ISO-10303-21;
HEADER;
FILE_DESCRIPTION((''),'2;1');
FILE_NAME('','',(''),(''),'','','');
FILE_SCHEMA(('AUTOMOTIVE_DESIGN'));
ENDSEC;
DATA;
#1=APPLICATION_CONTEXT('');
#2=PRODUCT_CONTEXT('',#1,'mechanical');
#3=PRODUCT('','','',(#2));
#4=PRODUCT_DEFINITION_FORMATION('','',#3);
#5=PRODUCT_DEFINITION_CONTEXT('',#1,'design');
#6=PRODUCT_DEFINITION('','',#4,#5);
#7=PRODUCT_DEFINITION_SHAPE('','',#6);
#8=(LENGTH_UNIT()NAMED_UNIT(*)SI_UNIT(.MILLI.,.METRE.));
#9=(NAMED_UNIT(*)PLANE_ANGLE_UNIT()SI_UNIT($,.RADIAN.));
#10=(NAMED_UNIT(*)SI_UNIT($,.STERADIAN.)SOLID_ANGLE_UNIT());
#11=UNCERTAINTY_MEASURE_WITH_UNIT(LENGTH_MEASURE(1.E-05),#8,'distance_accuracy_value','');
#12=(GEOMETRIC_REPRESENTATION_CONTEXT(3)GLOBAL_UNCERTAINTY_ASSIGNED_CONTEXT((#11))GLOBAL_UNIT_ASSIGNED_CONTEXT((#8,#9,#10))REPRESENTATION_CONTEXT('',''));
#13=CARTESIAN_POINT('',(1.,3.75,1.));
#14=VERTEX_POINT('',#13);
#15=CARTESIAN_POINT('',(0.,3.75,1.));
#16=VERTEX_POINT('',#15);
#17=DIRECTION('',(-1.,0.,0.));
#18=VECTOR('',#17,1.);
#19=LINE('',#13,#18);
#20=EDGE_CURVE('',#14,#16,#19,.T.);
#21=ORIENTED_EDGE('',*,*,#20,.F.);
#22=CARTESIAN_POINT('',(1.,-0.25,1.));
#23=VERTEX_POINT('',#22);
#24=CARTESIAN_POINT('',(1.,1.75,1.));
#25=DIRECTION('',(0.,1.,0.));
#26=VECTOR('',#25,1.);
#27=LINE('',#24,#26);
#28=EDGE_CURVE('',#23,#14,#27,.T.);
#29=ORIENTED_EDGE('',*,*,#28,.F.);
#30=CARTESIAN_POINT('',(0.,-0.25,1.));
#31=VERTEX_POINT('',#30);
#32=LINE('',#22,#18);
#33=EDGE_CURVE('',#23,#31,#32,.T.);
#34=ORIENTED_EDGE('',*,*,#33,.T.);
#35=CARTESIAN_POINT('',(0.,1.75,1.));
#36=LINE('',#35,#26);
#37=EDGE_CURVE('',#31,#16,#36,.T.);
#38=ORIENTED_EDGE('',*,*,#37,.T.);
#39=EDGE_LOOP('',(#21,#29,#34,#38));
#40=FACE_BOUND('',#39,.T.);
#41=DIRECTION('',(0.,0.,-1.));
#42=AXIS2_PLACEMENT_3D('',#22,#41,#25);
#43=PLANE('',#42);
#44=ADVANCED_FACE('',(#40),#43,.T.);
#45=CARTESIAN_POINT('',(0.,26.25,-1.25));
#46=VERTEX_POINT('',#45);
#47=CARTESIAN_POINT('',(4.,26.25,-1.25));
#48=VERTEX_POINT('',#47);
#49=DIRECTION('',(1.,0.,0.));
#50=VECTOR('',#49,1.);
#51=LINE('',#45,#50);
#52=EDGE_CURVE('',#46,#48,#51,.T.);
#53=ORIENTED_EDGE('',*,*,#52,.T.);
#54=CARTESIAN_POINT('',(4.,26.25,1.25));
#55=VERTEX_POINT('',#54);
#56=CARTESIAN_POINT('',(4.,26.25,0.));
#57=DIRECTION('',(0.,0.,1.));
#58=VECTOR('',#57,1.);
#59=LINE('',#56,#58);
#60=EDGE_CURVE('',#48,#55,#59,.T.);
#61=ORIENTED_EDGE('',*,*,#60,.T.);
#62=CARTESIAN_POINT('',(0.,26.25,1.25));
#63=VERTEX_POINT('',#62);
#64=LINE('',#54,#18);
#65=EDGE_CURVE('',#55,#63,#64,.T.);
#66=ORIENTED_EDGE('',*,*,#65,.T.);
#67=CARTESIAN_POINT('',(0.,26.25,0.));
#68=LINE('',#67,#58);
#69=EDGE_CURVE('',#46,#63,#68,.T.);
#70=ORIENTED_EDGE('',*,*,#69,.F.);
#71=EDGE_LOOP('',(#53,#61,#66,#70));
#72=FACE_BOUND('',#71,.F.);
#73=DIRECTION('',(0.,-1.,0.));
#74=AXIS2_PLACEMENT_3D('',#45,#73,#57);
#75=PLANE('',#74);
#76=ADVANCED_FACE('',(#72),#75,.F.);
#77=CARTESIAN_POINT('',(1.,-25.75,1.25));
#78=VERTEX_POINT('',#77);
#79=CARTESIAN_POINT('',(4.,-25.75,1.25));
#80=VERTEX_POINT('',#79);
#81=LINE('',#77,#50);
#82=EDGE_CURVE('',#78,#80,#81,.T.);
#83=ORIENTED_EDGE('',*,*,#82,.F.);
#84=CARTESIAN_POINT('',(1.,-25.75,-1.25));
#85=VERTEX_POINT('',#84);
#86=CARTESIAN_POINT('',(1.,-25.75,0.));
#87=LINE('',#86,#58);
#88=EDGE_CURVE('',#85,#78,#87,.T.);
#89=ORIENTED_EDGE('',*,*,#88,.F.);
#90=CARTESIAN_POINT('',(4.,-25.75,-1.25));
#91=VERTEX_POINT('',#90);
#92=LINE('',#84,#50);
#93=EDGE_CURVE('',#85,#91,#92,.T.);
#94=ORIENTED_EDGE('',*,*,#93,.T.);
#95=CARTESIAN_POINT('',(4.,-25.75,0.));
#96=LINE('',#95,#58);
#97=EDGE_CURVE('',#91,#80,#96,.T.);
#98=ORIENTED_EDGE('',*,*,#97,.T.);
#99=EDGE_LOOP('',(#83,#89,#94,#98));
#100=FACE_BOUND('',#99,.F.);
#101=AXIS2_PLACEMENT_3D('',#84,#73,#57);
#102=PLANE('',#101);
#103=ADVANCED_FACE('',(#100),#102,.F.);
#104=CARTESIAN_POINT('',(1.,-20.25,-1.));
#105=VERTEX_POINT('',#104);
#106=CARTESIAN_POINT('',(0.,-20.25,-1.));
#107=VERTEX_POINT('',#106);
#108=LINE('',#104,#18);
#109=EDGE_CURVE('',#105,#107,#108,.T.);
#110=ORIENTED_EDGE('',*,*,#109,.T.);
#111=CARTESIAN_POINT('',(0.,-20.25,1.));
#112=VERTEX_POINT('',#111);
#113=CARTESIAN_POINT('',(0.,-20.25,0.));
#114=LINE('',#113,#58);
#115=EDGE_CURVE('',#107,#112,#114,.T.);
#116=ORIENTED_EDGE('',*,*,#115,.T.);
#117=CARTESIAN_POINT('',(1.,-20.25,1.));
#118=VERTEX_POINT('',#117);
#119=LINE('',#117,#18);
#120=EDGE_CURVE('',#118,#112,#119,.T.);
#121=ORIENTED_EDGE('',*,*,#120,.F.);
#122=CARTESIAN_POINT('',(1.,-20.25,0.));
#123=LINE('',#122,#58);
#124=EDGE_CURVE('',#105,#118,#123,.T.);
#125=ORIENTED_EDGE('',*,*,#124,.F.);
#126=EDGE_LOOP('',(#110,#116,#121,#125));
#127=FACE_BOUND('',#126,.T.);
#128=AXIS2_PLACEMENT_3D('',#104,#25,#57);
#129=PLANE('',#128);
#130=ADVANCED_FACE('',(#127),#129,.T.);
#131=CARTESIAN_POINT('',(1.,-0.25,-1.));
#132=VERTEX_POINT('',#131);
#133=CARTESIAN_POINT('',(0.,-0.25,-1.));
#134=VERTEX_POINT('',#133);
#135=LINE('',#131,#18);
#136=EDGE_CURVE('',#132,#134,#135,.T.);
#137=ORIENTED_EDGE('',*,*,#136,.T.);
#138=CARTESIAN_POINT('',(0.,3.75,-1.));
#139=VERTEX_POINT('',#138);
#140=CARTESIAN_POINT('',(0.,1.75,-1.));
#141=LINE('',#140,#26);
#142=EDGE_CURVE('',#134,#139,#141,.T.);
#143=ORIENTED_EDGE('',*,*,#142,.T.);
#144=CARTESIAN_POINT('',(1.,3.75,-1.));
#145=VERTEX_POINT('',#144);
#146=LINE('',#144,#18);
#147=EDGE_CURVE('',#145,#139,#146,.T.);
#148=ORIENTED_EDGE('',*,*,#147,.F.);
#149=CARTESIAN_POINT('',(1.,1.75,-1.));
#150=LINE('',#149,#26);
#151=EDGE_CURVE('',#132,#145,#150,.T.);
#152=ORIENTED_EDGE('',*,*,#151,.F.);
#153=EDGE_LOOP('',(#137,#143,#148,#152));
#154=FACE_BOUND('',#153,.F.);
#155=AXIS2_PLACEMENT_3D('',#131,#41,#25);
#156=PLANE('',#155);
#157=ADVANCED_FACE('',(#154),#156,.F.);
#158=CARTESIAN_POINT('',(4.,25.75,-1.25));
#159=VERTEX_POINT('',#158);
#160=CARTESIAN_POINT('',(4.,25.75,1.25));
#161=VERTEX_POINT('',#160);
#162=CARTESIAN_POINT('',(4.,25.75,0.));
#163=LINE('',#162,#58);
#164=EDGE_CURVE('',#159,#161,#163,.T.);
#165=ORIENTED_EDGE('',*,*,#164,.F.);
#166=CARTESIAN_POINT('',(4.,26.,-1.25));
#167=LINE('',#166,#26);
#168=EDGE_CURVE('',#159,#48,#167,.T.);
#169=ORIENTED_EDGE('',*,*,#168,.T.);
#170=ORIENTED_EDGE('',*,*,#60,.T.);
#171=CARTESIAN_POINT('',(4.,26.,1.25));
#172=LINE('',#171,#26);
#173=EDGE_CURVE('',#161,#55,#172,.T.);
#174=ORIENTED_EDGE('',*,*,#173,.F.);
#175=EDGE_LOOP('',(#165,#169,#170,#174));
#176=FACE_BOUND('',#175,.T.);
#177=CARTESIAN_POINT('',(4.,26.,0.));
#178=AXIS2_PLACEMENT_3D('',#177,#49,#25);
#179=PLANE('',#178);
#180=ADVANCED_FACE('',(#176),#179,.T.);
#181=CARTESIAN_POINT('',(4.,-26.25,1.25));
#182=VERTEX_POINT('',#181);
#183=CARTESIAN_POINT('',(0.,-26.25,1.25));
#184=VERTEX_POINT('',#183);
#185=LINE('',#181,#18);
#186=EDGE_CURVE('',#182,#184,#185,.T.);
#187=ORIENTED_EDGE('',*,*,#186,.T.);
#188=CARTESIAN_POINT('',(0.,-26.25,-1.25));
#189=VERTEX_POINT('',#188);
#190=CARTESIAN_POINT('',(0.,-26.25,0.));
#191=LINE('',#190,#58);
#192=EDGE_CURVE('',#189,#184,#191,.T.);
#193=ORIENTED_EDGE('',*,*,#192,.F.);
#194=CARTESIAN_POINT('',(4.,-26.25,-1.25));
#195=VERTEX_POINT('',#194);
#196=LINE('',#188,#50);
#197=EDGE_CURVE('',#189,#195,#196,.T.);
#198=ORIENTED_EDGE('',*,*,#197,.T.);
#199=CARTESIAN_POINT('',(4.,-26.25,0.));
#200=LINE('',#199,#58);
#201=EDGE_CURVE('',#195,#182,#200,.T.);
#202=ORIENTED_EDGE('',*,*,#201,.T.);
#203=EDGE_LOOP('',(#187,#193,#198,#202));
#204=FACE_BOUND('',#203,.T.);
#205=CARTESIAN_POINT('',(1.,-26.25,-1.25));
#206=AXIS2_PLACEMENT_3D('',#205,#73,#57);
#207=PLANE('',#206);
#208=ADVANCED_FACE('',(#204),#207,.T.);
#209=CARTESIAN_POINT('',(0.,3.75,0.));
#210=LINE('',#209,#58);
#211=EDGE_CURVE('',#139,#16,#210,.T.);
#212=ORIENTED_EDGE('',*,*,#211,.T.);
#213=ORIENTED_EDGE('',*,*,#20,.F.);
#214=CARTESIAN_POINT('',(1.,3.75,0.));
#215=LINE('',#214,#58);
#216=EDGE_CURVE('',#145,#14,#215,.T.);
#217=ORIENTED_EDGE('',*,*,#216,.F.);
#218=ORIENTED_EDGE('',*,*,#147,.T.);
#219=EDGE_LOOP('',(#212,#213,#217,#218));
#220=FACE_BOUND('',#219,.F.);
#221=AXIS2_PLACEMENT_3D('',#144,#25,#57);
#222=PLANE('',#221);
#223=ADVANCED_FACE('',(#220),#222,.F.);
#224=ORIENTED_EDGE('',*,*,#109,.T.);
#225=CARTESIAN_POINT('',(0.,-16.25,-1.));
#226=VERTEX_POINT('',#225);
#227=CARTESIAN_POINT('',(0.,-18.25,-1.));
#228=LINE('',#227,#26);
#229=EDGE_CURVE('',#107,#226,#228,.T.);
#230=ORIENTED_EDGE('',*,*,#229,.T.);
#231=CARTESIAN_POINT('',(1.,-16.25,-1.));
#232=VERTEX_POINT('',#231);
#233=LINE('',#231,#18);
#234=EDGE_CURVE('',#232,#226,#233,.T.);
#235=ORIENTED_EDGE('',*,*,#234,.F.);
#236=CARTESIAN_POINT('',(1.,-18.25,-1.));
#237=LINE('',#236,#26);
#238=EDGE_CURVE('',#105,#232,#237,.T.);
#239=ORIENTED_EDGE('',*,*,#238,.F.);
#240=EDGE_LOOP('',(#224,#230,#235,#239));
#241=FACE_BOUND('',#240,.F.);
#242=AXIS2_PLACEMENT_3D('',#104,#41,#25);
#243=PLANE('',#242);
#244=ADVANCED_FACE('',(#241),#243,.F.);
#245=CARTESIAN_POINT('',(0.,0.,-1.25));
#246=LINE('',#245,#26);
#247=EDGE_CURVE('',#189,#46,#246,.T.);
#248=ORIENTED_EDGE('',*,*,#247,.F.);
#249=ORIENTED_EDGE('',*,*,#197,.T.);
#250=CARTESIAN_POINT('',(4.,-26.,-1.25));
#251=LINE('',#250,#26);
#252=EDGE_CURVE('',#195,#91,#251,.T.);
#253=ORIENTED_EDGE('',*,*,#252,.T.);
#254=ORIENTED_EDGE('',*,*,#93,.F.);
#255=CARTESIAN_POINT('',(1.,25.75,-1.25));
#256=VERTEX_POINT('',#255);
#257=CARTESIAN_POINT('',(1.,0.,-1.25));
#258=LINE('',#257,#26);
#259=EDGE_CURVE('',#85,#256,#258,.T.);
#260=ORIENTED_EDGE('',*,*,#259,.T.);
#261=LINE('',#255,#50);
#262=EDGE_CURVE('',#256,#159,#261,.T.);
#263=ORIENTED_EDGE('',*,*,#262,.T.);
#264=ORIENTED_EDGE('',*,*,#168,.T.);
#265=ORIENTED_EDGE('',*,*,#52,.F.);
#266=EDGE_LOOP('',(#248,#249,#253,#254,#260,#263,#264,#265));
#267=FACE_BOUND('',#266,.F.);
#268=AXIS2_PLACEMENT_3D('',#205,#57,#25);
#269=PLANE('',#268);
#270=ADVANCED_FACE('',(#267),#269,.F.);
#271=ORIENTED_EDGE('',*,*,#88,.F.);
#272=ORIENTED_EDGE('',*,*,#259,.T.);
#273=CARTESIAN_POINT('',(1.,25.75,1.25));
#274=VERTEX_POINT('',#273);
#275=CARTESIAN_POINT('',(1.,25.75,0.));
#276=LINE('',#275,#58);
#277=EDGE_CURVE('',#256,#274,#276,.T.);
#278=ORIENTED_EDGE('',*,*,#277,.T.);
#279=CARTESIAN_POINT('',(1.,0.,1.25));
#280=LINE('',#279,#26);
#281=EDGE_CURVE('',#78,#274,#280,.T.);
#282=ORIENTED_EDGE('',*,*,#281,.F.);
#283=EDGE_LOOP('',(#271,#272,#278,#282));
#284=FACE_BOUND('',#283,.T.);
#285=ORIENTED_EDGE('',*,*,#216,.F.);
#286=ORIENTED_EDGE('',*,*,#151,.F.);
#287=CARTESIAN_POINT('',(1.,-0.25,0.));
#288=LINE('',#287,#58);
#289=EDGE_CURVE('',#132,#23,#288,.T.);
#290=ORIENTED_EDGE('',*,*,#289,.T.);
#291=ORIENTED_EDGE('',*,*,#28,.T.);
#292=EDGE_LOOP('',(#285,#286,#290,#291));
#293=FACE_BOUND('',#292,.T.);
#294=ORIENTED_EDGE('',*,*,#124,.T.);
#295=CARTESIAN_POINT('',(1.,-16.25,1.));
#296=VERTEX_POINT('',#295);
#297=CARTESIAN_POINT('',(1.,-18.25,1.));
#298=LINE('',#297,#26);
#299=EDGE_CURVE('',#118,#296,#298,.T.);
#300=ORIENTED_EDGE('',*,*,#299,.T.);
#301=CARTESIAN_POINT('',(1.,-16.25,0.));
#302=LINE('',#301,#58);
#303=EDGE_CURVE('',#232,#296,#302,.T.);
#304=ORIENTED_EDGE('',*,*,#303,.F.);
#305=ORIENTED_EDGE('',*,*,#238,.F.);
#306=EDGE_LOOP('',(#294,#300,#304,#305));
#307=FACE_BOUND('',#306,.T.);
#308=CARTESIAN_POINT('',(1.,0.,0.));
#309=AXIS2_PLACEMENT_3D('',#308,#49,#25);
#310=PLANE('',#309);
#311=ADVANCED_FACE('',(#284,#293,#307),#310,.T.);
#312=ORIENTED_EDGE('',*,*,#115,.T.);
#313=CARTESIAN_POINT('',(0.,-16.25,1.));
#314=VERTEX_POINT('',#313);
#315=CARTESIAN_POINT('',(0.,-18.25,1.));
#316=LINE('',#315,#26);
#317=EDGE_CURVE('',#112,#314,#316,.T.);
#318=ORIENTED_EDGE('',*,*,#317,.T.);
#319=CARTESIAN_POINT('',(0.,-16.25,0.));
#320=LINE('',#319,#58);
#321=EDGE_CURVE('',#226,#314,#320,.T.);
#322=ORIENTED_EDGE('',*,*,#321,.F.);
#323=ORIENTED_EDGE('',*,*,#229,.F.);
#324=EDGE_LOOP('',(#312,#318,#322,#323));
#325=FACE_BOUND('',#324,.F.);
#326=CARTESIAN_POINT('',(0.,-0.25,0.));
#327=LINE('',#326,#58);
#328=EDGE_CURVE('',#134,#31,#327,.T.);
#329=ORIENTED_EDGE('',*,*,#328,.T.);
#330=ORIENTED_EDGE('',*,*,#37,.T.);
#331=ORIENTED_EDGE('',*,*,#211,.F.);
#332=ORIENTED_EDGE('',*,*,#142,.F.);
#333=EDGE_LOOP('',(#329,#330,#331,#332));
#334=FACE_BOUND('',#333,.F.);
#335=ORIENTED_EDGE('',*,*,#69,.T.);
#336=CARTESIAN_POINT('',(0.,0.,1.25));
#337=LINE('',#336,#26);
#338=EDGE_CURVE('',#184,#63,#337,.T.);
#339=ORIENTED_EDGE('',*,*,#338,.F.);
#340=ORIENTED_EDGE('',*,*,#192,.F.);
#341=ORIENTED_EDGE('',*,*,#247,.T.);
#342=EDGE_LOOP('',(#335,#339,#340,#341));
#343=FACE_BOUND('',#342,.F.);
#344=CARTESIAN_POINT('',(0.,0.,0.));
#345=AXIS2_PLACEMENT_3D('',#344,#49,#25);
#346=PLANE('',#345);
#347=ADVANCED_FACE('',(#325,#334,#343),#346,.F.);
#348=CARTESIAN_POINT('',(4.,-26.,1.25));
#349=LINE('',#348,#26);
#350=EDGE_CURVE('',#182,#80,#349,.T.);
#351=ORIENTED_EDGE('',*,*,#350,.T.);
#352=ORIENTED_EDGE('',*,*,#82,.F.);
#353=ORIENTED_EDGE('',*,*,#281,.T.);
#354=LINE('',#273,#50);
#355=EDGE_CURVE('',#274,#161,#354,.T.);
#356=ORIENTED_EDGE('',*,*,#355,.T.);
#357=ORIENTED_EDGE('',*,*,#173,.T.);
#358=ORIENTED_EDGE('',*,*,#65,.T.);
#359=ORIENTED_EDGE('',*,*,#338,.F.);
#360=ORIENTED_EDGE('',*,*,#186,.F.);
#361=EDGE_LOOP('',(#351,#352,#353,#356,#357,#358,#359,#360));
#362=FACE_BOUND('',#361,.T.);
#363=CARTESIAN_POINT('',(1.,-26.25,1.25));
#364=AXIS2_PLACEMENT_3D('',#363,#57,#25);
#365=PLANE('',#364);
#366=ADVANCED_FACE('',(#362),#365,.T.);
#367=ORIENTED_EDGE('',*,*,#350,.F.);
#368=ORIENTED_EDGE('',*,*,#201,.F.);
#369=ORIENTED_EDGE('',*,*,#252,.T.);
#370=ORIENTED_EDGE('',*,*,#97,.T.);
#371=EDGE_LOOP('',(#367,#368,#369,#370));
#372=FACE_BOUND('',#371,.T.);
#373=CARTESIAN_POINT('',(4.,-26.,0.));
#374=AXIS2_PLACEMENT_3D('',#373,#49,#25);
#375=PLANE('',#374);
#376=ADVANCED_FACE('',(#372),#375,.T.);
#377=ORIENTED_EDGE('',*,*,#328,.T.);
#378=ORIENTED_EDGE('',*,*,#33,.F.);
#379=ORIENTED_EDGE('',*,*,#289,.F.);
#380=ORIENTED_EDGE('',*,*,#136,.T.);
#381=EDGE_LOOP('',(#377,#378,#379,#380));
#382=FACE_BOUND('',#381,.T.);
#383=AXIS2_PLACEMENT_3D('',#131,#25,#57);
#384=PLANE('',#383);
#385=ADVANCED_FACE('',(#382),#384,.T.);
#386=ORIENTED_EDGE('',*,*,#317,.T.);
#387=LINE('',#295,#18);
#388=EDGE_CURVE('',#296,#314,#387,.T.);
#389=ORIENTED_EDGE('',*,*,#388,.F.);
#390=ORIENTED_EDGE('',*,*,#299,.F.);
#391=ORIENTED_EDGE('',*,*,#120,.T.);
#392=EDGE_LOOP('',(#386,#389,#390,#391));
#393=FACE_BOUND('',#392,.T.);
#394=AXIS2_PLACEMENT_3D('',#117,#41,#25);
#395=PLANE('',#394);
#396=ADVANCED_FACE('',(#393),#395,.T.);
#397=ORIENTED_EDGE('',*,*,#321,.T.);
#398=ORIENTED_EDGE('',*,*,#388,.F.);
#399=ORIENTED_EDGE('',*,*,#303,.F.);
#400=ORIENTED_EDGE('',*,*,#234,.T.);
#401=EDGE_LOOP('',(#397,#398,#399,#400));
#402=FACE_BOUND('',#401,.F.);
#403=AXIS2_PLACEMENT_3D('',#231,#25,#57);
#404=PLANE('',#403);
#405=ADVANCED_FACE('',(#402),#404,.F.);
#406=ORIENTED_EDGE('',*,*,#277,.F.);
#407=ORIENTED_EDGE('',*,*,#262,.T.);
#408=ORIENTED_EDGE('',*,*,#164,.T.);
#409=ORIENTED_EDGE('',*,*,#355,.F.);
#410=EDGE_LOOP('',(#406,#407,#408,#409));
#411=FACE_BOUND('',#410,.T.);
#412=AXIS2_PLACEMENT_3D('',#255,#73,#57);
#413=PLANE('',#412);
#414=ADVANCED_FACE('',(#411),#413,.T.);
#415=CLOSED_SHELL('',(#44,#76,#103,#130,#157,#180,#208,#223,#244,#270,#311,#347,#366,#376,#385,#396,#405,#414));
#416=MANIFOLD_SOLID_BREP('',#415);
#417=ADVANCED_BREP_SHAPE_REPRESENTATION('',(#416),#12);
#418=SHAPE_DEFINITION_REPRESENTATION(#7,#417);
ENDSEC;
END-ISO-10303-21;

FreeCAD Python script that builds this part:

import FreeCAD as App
import Part
import Sketcher

doc = App.newDocument("Part")
body = doc.addObject("PartDesign::Body", "Body")

# Sketch on YZ plane
sketch1 = body.newObject("Sketcher::SketchObject", "Sketch")
sketch1.AttachmentSupport = (doc.getObject("YZ_Plane"), [""])
sketch1.MapMode = "FlatFace"
sketch1.addGeometry(Part.LineSegment(App.Vector(-26.25, 1.25, 0), App.Vector(-26.25, -1.25, 0)), False)
sketch1.addGeometry(Part.LineSegment(App.Vector(-26.25, -1.25, 0), App.Vector(26.25, -1.25, 0)), False)
sketch1.addGeometry(Part.LineSegment(App.Vector(26.25, -1.25, 0), App.Vector(26.25, 1.25, 0)), False)
sketch1.addGeometry(Part.LineSegment(App.Vector(26.25, 1.25, 0), App.Vector(-26.25, 1.25, 0)), False)
sketch1.addConstraint(Sketcher.Constraint("Coincident", 0, 2, 1, 1))
sketch1.addConstraint(Sketcher.Constraint("Coincident", 1, 2, 2, 1))
sketch1.addConstraint(Sketcher.Constraint("Coincident", 2, 2, 3, 1))
sketch1.addConstraint(Sketcher.Constraint("Coincident", 3, 2, 0, 1))
sketch1.addConstraint(Sketcher.Constraint("Vertical", 0))
sketch1.addConstraint(Sketcher.Constraint("Horizontal", 1))
sketch1.addConstraint(Sketcher.Constraint("Vertical", 2))
sketch1.addConstraint(Sketcher.Constraint("Horizontal", 3))
sketch1.addConstraint(Sketcher.Constraint("Symmetric", 0, 2, 2, 2, -1, 1))
sketch1.addConstraint(Sketcher.Constraint("DistanceX", 1, 1, 1, 2, 52.5))
sketch1.addConstraint(Sketcher.Constraint("DistanceY", 0, 2, 0, 1, 2.5))
pad1 = body.newObject("PartDesign::Pad", "Pad")
pad1.Profile = sketch1
pad1.Length = 1

# Sketch on YZ plane
sketch2 = body.newObject("Sketcher::SketchObject", "Sketch001")
sketch2.AttachmentSupport = (doc.getObject("YZ_Plane"), [""])
sketch2.MapMode = "FlatFace"
sketch2.AttachmentOffset = App.Placement(App.Vector(0, 0, 1), App.Rotation())
sketch2.addGeometry(Part.LineSegment(App.Vector(-26.25, 1.25, 0), App.Vector(-26.25, -1.25, 0)), False)
sketch2.addGeometry(Part.LineSegment(App.Vector(-26.25, -1.25, 0), App.Vector(-25.75, -1.25, 0)), False)
sketch2.addGeometry(Part.LineSegment(App.Vector(-25.75, -1.25, 0), App.Vector(-25.75, 1.25, 0)), False)
sketch2.addGeometry(Part.LineSegment(App.Vector(-25.75, 1.25, 0), App.Vector(-26.25, 1.25, 0)), False)
sketch2.addGeometry(Part.LineSegment(App.Vector(25.75, 1.25, 0), App.Vector(25.75, -1.25, 0)), False)
sketch2.addGeometry(Part.LineSegment(App.Vector(25.75, -1.25, 0), App.Vector(26.25, -1.25, 0)), False)
sketch2.addGeometry(Part.LineSegment(App.Vector(26.25, -1.25, 0), App.Vector(26.25, 1.25, 0)), False)
sketch2.addGeometry(Part.LineSegment(App.Vector(26.25, 1.25, 0), App.Vector(25.75, 1.25, 0)), False)
sketch2.addConstraint(Sketcher.Constraint("Coincident", 0, 2, 1, 1))
sketch2.addConstraint(Sketcher.Constraint("Coincident", 1, 2, 2, 1))
sketch2.addConstraint(Sketcher.Constraint("Coincident", 2, 2, 3, 1))
sketch2.addConstraint(Sketcher.Constraint("Coincident", 3, 2, 0, 1))
sketch2.addConstraint(Sketcher.Constraint("Coincident", 4, 2, 5, 1))
sketch2.addConstraint(Sketcher.Constraint("Coincident", 5, 2, 6, 1))
sketch2.addConstraint(Sketcher.Constraint("Coincident", 6, 2, 7, 1))
sketch2.addConstraint(Sketcher.Constraint("Coincident", 7, 2, 4, 1))
sketch2.addConstraint(Sketcher.Constraint("Vertical", 0))
sketch2.addConstraint(Sketcher.Constraint("Horizontal", 1))
sketch2.addConstraint(Sketcher.Constraint("Vertical", 2))
sketch2.addConstraint(Sketcher.Constraint("Horizontal", 3))
sketch2.addConstraint(Sketcher.Constraint("Vertical", 4))
sketch2.addConstraint(Sketcher.Constraint("Horizontal", 5))
sketch2.addConstraint(Sketcher.Constraint("Vertical", 6))
sketch2.addConstraint(Sketcher.Constraint("Horizontal", 7))
sketch2.addConstraint(Sketcher.Constraint("Symmetric", 2, 2, 4, 2, -1, 1))
sketch2.addConstraint(Sketcher.Constraint("Symmetric", 0, 2, 6, 2, -1, 1))
sketch2.addConstraint(Sketcher.Constraint("Horizontal", 1, 2, 4, 2))
sketch2.addConstraint(Sketcher.Constraint("DistanceX", 1, 1, 1, 2, 0.5))
sketch2.addConstraint(Sketcher.Constraint("DistanceY", 0, 2, 0, 1, 2.5))
sketch2.addConstraint(Sketcher.Constraint("DistanceX", 0, 2, 4, 2, 52.0))
pad2 = body.newObject("PartDesign::Pad", "Pad001")
pad2.Profile = sketch2
pad2.Length = 3

# Sketch on YZ plane
sketch3 = body.newObject("Sketcher::SketchObject", "Sketch002")
sketch3.AttachmentSupport = (doc.getObject("YZ_Plane"), [""])
sketch3.MapMode = "FlatFace"
sketch3.AttachmentOffset = App.Placement(App.Vector(0, 0, 1), App.Rotation())
sketch3.addGeometry(Part.LineSegment(App.Vector(-20.25, 1, 0), App.Vector(-20.25, -1, 0)), False)
sketch3.addGeometry(Part.LineSegment(App.Vector(-20.25, -1, 0), App.Vector(-16.25, -1, 0)), False)
sketch3.addGeometry(Part.LineSegment(App.Vector(-16.25, -1, 0), App.Vector(-16.25, 1, 0)), False)
sketch3.addGeometry(Part.LineSegment(App.Vector(-16.25, 1, 0), App.Vector(-20.25, 1, 0)), False)
sketch3.addGeometry(Part.LineSegment(App.Vector(-0.25, 1, 0), App.Vector(-0.25, -1, 0)), False)
sketch3.addGeometry(Part.LineSegment(App.Vector(-0.25, -1, 0), App.Vector(3.75, -1, 0)), False)
sketch3.addGeometry(Part.LineSegment(App.Vector(3.75, -1, 0), App.Vector(3.75, 1, 0)), False)
sketch3.addGeometry(Part.LineSegment(App.Vector(3.75, 1, 0), App.Vector(-0.25, 1, 0)), False)
sketch3.addConstraint(Sketcher.Constraint("Coincident", 0, 2, 1, 1))
sketch3.addConstraint(Sketcher.Constraint("Coincident", 1, 2, 2, 1))
sketch3.addConstraint(Sketcher.Constraint("Coincident", 2, 2, 3, 1))
sketch3.addConstraint(Sketcher.Constraint("Coincident", 3, 2, 0, 1))
sketch3.addConstraint(Sketcher.Constraint("Coincident", 4, 2, 5, 1))
sketch3.addConstraint(Sketcher.Constraint("Coincident", 5, 2, 6, 1))
sketch3.addConstraint(Sketcher.Constraint("Coincident", 6, 2, 7, 1))
sketch3.addConstraint(Sketcher.Constraint("Coincident", 7, 2, 4, 1))
sketch3.addConstraint(Sketcher.Constraint("Vertical", 0))
sketch3.addConstraint(Sketcher.Constraint("Horizontal", 1))
sketch3.addConstraint(Sketcher.Constraint("Vertical", 2))
sketch3.addConstraint(Sketcher.Constraint("Horizontal", 3))
sketch3.addConstraint(Sketcher.Constraint("Vertical", 4))
sketch3.addConstraint(Sketcher.Constraint("Horizontal", 5))
sketch3.addConstraint(Sketcher.Constraint("Vertical", 6))
sketch3.addConstraint(Sketcher.Constraint("Horizontal", 7))
sketch3.addConstraint(Sketcher.Constraint("Horizontal", 1, 2, 4, 2))
sketch3.addConstraint(Sketcher.Constraint("Horizontal", 3, 2, 6, 2))
sketch3.addConstraint(Sketcher.Constraint("Equal", 3, 5))
sketch3.addConstraint(Sketcher.Constraint("DistanceX", 1, 1, 1, 2, 4.0))
sketch3.addConstraint(Sketcher.Constraint("DistanceY", 0, 2, 0, 1, 2.0))
sketch3.addConstraint(Sketcher.Constraint("DistanceY", 0, 2, -1, 1, 1.0))
sketch3.addConstraint(Sketcher.Constraint("DistanceX", 1, 2, 4, 2, 16.0))
sketch3.addConstraint(Sketcher.Constraint("DistanceX", 0, 2, -1, 1, 20.25))
pocket1 = body.newObject("PartDesign::Pocket", "Pocket")
pocket1.Profile = sketch3
pocket1.Type = "ThroughAll"

doc.recompute()
